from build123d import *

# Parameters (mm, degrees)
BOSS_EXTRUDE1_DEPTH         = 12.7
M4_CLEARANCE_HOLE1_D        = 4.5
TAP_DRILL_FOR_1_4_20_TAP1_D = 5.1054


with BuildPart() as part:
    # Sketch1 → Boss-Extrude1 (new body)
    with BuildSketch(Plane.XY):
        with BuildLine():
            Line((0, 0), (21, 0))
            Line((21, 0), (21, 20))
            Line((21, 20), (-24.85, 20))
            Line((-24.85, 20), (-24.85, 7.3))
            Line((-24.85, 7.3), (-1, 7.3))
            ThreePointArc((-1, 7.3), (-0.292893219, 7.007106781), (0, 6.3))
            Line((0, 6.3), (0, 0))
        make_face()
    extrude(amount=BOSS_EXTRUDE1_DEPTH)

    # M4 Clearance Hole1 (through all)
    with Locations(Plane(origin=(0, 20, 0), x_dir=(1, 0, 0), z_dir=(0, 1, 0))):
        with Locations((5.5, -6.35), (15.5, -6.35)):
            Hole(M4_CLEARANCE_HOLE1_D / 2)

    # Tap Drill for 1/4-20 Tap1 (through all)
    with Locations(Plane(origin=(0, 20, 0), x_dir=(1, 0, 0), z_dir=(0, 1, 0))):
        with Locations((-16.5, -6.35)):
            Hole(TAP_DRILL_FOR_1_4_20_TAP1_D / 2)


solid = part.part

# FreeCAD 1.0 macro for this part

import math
import FreeCAD as App
import Part
import Sketcher
from FreeCAD import Vector

doc = App.newDocument("Part")
body = doc.addObject("PartDesign::Body", "Body")

sketch1 = body.newObject("Sketcher::SketchObject", "Sketch")
sketch1.AttachmentSupport = (doc.getObject("XY_Plane"), [""])
sketch1.MapMode = "FlatFace"
sketch1.addGeometry([
    Part.LineSegment(Vector(0, 0, 0), Vector(21, 0, 0)),
    Part.LineSegment(Vector(21, 0, 0), Vector(21, 20, 0)),
    Part.LineSegment(Vector(21, 20, 0), Vector(-24.9, 20, 0)),
    Part.LineSegment(Vector(-24.9, 20, 0), Vector(-24.9, 7.3, 0)),
    Part.LineSegment(Vector(-24.9, 7.3, 0), Vector(-1, 7.3, 0)),
    Part.ArcOfCircle(Part.Circle(Vector(-1, 6.3, 0), Vector(0, 0, 1), 1), math.radians(0), math.radians(90)),
    Part.LineSegment(Vector(0, 6.3, 0), Vector(0, 0, 0)),
], False)
sketch1.addConstraint([
    Sketcher.Constraint("Coincident", 0, 2, 1, 1),
    Sketcher.Constraint("Coincident", 1, 2, 2, 1),
    Sketcher.Constraint("Coincident", 2, 2, 3, 1),
    Sketcher.Constraint("Coincident", 3, 2, 4, 1),
    Sketcher.Constraint("Tangent", 4, 2, 5, 2),
    Sketcher.Constraint("Tangent", 5, 1, 6, 1),
    Sketcher.Constraint("Coincident", 6, 2, 0, 1),
    Sketcher.Constraint("Horizontal", 0),
    Sketcher.Constraint("Vertical", 1),
    Sketcher.Constraint("Horizontal", 2),
    Sketcher.Constraint("Vertical", 3),
    Sketcher.Constraint("Horizontal", 4),
    Sketcher.Constraint("Vertical", 6),
    Sketcher.Constraint("Coincident", 6, 2, -1, 1),
    Sketcher.Constraint("Radius", 5, 1.0),
    Sketcher.Constraint("DistanceX", 0, 1, 0, 2, 21.0),
    Sketcher.Constraint("DistanceY", 1, 1, 1, 2, 20.0),
    Sketcher.Constraint("DistanceY", 3, 2, 3, 1, 12.7),
    Sketcher.Constraint("DistanceX", 2, 2, 2, 1, 45.85),
])
pad1 = body.newObject("PartDesign::Pad", "Pad")
pad1.Profile = sketch1
pad1.Length = 12.7

sketch2 = body.newObject("Sketcher::SketchObject", "Sketch001")
sketch2.AttachmentSupport = (doc.getObject("XZ_Plane"), [""])
sketch2.MapMode = "FlatFace"
sketch2.AttachmentOffset = App.Placement(Vector(0, 0, -20), App.Rotation())
sketch2.addGeometry([
    Part.Circle(Vector(5.5, 6.3, 0), Vector(0, 0, 1), 2.2),
    Part.Circle(Vector(15.5, 6.3, 0), Vector(0, 0, 1), 2.2),
], False)
sketch2.addConstraint([
    Sketcher.Constraint("Equal", 0, 1),
    Sketcher.Constraint("Horizontal", 0, 3, 1, 3),
    Sketcher.Constraint("Diameter", 0, 4.5),
    Sketcher.Constraint("DistanceX", 0, 3, 1, 3, 10.0),
    Sketcher.Constraint("DistanceX", -1, 1, 0, 3, 5.5),
    Sketcher.Constraint("DistanceY", -1, 1, 0, 3, 6.35),
])
doc.recompute()
hole = body.newObject("PartDesign::Hole", "Hole")
hole.Profile = sketch2
hole.ThreadType = "None"
hole.Diameter = 4.5
hole.DepthType = "ThroughAll"
hole.Reversed = True

sketch3 = body.newObject("Sketcher::SketchObject", "Sketch002")
sketch3.AttachmentSupport = (doc.getObject("XZ_Plane"), [""])
sketch3.MapMode = "FlatFace"
sketch3.AttachmentOffset = App.Placement(Vector(0, 0, -20), App.Rotation())
sketch3.addGeometry(Part.Circle(Vector(-16.5, 6.3, 0), Vector(0, 0, 1), 2.6), False)
sketch3.addConstraint([
    Sketcher.Constraint("Diameter", 0, 5.1054),
    Sketcher.Constraint("DistanceX", 0, 3, -1, 1, 16.5),
    Sketcher.Constraint("DistanceY", -1, 1, 0, 3, 6.35),
])
doc.recompute()
hole2 = body.newObject("PartDesign::Hole", "Hole001")
hole2.Profile = sketch3
hole2.ThreadType = "None"
hole2.Diameter = 5.1054
hole2.DepthType = "ThroughAll"
hole2.Reversed = True

doc.recompute()
